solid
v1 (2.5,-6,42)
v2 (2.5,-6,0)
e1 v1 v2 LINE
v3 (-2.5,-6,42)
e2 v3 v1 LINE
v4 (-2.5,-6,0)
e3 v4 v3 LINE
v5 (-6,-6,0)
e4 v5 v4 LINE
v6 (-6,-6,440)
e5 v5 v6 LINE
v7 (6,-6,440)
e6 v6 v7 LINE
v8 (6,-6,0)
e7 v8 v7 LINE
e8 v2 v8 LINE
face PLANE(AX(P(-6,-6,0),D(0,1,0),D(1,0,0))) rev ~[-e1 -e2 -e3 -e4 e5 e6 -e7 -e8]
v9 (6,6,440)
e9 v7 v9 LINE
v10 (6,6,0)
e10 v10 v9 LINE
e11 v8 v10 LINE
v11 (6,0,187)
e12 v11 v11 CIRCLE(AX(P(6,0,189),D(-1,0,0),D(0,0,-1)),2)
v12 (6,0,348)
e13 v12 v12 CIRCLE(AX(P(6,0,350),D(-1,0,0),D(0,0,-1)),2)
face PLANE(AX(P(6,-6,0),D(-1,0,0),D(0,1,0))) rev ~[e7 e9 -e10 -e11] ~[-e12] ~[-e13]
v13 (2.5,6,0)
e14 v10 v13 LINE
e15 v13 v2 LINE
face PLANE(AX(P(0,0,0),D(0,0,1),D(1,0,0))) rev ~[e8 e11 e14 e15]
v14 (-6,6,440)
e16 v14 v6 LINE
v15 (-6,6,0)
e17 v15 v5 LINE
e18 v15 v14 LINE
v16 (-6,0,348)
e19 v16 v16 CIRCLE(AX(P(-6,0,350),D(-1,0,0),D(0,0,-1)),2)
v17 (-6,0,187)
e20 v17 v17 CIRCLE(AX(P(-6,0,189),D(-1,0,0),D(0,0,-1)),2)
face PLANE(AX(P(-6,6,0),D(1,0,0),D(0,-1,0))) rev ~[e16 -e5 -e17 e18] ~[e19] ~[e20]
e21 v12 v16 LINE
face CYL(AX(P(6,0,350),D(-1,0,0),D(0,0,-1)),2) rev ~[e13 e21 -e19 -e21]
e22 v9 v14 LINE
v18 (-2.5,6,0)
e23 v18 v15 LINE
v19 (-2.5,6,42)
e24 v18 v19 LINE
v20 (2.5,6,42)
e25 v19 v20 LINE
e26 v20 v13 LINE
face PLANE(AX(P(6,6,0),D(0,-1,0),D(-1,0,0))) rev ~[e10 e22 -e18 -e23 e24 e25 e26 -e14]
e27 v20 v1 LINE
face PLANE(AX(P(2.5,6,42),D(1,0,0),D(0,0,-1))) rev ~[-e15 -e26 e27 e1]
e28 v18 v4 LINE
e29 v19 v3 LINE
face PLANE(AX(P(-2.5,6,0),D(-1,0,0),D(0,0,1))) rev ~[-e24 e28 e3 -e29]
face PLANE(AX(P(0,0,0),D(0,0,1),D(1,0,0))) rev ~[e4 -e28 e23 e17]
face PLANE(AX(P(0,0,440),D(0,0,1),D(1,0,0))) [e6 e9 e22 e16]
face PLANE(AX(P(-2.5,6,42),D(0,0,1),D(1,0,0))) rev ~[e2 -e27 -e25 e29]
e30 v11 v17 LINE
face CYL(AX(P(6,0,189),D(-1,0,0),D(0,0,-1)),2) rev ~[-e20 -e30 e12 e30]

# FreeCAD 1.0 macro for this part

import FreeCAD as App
import Part
import Sketcher
Q = App.Units.Quantity

doc = App.newDocument("Part")
body = doc.addObject("PartDesign::Body", "Body")

sketch1 = body.newObject("Sketcher::SketchObject", "Sketch")
sketch1.AttachmentSupport = (doc.getObject("XY_Plane"), [""])
sketch1.MapMode = "FlatFace"
sketch1.addGeometry(Part.LineSegment(App.Vector(-6, 6, 0), App.Vector(-6, -6, 0)), False)
sketch1.addGeometry(Part.LineSegment(App.Vector(-6, -6, 0), App.Vector(6, -6, 0)), False)
sketch1.addGeometry(Part.LineSegment(App.Vector(6, -6, 0), App.Vector(6, 6, 0)), False)
sketch1.addGeometry(Part.LineSegment(App.Vector(6, 6, 0), App.Vector(-6, 6, 0)), False)
sketch1.addConstraint(Sketcher.Constraint("Coincident", 0, 2, 1, 1))
sketch1.addConstraint(Sketcher.Constraint("Coincident", 1, 2, 2, 1))
sketch1.addConstraint(Sketcher.Constraint("Coincident", 2, 2, 3, 1))
sketch1.addConstraint(Sketcher.Constraint("Coincident", 3, 2, 0, 1))
sketch1.addConstraint(Sketcher.Constraint("Vertical", 0))
sketch1.addConstraint(Sketcher.Constraint("Horizontal", 1))
sketch1.addConstraint(Sketcher.Constraint("Vertical", 2))
sketch1.addConstraint(Sketcher.Constraint("Horizontal", 3))
sketch1.addConstraint(Sketcher.Constraint("Symmetric", 0, 2, 2, 2, -1, 1))
sketch1.addConstraint(Sketcher.Constraint("Equal", 3, 0))
sketch1.addConstraint(Sketcher.Constraint("DistanceX", 1, 1, 1, 2, Q("12 mm")))
pad1 = body.newObject("PartDesign::Pad", "Pad")
pad1.Profile = sketch1
pad1.Length = 440

sketch2 = body.newObject("Sketcher::SketchObject", "Sketch001")
sketch2.AttachmentSupport = (doc.getObject("XZ_Plane"), [""])
sketch2.MapMode = "FlatFace"
sketch2.AttachmentOffset = App.Placement(App.Vector(0, 0, -6), App.Rotation())
sketch2.addGeometry(Part.LineSegment(App.Vector(2, 42, 0), App.Vector(2, 0, 0)), False)
sketch2.addGeometry(Part.LineSegment(App.Vector(2, 0, 0), App.Vector(-2, 0, 0)), False)
sketch2.addGeometry(Part.LineSegment(App.Vector(-2, 0, 0), App.Vector(-2, 42, 0)), False)
sketch2.addGeometry(Part.LineSegment(App.Vector(-2, 42, 0), App.Vector(2, 42, 0)), False)
sketch2.addConstraint(Sketcher.Constraint("Coincident", 0, 2, 1, 1))
sketch2.addConstraint(Sketcher.Constraint("Coincident", 1, 2, 2, 1))
sketch2.addConstraint(Sketcher.Constraint("Coincident", 2, 2, 3, 1))
sketch2.addConstraint(Sketcher.Constraint("Coincident", 3, 2, 0, 1))
sketch2.addConstraint(Sketcher.Constraint("Vertical", 0))
sketch2.addConstraint(Sketcher.Constraint("Horizontal", 1))
sketch2.addConstraint(Sketcher.Constraint("Vertical", 2))
sketch2.addConstraint(Sketcher.Constraint("Horizontal", 3))
sketch2.addConstraint(Sketcher.Constraint("Symmetric", 0, 2, 1, 2, -1, 1))
sketch2.addConstraint(Sketcher.Constraint("DistanceX", 1, 2, 1, 1, Q("5 mm")))
sketch2.addConstraint(Sketcher.Constraint("DistanceY", 0, 2, 0, 1, Q("42 mm")))
pocket1 = body.newObject("PartDesign::Pocket", "Pocket")
pocket1.Profile = sketch2
pocket1.Type = "ThroughAll"
pocket1.Reversed = True

sketch3 = body.newObject("Sketcher::SketchObject", "Sketch002")
sketch3.AttachmentSupport = (doc.getObject("YZ_Plane"), [""])
sketch3.MapMode = "FlatFace"
sketch3.AttachmentOffset = App.Placement(App.Vector(0, 0, 6), App.Rotation())
sketch3.addGeometry(Part.Circle(App.Vector(0, 350, 0), App.Vector(0, 0, 1), 2), False)
sketch3.addGeometry(Part.Circle(App.Vector(0, 189, 0), App.Vector(0, 0, 1), 2), False)
sketch3.addConstraint(Sketcher.Constraint("Equal", 0, 1))
sketch3.addConstraint(Sketcher.Constraint("PointOnObject", 0, 3, -2))
sketch3.addConstraint(Sketcher.Constraint("PointOnObject", 1, 3, -2))
sketch3.addConstraint(Sketcher.Constraint("Diameter", 0, Q("4 mm")))
sketch3.addConstraint(Sketcher.Constraint("DistanceY", -1, 1, 0, 3, Q("350 mm")))
sketch3.addConstraint(Sketcher.Constraint("DistanceY", -1, 1, 1, 3, Q("189 mm")))
doc.recompute()
hole = body.newObject("PartDesign::Hole", "Hole")
hole.Profile = sketch3
hole.ThreadType = "None"
hole.Diameter = 4
hole.DepthType = "ThroughAll"

doc.recompute()
